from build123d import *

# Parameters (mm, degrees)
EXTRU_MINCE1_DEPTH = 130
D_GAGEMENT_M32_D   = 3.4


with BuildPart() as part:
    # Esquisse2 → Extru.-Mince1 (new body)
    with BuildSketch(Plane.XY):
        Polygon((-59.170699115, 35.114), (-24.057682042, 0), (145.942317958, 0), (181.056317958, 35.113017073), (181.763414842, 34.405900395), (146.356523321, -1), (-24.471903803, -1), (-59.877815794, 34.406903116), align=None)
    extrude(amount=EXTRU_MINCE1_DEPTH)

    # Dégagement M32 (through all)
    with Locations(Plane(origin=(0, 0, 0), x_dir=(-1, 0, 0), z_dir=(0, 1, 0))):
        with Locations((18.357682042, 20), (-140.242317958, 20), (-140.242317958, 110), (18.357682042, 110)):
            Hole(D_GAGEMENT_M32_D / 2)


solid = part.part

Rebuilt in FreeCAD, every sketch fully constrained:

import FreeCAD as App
import Part
import Sketcher

V = App.Vector


def add_polygon(sketch, points):
    """Adds a closed chain of lines whose ends are joined by coincident constraints."""
    first, n = sketch.GeometryCount, len(points)
    for a, b in zip(points, points[1:] + points[:1]):
        sketch.addGeometry(Part.LineSegment(App.Vector(*a, 0), App.Vector(*b, 0)), False)
    for i in range(n):
        sketch.addConstraint(Sketcher.Constraint("Coincident", first + i, 2, first + (i + 1) % n, 1))

doc = App.newDocument("Part")
body = doc.addObject("PartDesign::Body", "Body")

# Sketch on XY plane
sketch1 = doc.addObject("Sketcher::SketchObject", "Sketch")
body.addObject(sketch1)
sketch1.AttachmentSupport = (doc.XY_Plane, [""])
sketch1.MapMode = "FlatFace"
add_polygon(sketch1, [(-24.1, 0), (-59.2, 35.1), (-59.9, 34.4), (-24.5, -1), (146.4, -1), (181.8, 34.4), (181.1, 35.1), (145.9, 0)])  # lines 0-7
sketch1.addConstraint([
    Sketcher.Constraint("Horizontal", 3),
    Sketcher.Constraint("Horizontal", 7),
    Sketcher.Constraint("PointOnObject", 6, 2, -1),
    Sketcher.Constraint("Perpendicular", 0, 1),
    Sketcher.Constraint("Perpendicular", 1, 2),
    Sketcher.Constraint("Perpendicular", 2, 4),
    Sketcher.Constraint("Perpendicular", 4, 5),
    Sketcher.Constraint("Perpendicular", 5, 6),
    Sketcher.Constraint("Equal", 1, 5),
    Sketcher.Constraint("Equal", 0, 6),
    Sketcher.Constraint("DistanceX", 7, 2, 7, 1, 170.0),
    Sketcher.Constraint("Distance", 1, 1.0),
    Sketcher.Constraint("DistanceY", 2, 2, -1, 1, 1.0),
    Sketcher.Constraint("Distance", 0, 49.658),
    Sketcher.Constraint("DistanceY", -1, 1, 0, 2, 35.114),
    Sketcher.Constraint("DistanceX", 0, 2, -1, 1, 59.170699),
])
pad1 = doc.addObject("PartDesign::Pad", "Pad")
body.addObject(pad1)
pad1.Profile = sketch1
pad1.Length = 130

# Sketch on XZ plane
sketch2 = doc.addObject("Sketcher::SketchObject", "Sketch001")
body.addObject(sketch2)
sketch2.AttachmentSupport = (doc.XZ_Plane, [""])
sketch2.MapMode = "FlatFace"
sketch2.addGeometry([
    Part.Circle(V(-18.4, 20, 0), V(0, 0, 1), 1.7),
    Part.Circle(V(140.2, 20, 0), V(0, 0, 1), 1.7),
    Part.Circle(V(140.2, 110, 0), V(0, 0, 1), 1.7),
    Part.Circle(V(-18.4, 110, 0), V(0, 0, 1), 1.7),
], False)
sketch2.addConstraint([
    Sketcher.Constraint("Equal", 0, 1),
    Sketcher.Constraint("Equal", 1, 2),
    Sketcher.Constraint("Equal", 2, 3),
    Sketcher.Constraint("Horizontal", 0, 3, 1, 3),
    Sketcher.Constraint("Horizontal", 2, 3, 3, 3),
    Sketcher.Constraint("Vertical", 1, 3, 2, 3),
    Sketcher.Constraint("Vertical", 0, 3, 3, 3),
    Sketcher.Constraint("Diameter", 0, 3.4),
    Sketcher.Constraint("DistanceY", -1, 1, 0, 3, 20.0),
    Sketcher.Constraint("DistanceY", -1, 1, 2, 3, 110.0),
    Sketcher.Constraint("DistanceX", 0, 3, 1, 3, 158.6),
    Sketcher.Constraint("DistanceX", 0, 3, -1, 1, 18.357682),
])
doc.recompute()
hole = doc.addObject("PartDesign::Hole", "Hole")
body.addObject(hole)
hole.Profile = sketch2
hole.ThreadType = "None"
hole.Diameter = 3.4
hole.DepthType = "ThroughAll"
hole.Reversed = True

doc.recompute()
